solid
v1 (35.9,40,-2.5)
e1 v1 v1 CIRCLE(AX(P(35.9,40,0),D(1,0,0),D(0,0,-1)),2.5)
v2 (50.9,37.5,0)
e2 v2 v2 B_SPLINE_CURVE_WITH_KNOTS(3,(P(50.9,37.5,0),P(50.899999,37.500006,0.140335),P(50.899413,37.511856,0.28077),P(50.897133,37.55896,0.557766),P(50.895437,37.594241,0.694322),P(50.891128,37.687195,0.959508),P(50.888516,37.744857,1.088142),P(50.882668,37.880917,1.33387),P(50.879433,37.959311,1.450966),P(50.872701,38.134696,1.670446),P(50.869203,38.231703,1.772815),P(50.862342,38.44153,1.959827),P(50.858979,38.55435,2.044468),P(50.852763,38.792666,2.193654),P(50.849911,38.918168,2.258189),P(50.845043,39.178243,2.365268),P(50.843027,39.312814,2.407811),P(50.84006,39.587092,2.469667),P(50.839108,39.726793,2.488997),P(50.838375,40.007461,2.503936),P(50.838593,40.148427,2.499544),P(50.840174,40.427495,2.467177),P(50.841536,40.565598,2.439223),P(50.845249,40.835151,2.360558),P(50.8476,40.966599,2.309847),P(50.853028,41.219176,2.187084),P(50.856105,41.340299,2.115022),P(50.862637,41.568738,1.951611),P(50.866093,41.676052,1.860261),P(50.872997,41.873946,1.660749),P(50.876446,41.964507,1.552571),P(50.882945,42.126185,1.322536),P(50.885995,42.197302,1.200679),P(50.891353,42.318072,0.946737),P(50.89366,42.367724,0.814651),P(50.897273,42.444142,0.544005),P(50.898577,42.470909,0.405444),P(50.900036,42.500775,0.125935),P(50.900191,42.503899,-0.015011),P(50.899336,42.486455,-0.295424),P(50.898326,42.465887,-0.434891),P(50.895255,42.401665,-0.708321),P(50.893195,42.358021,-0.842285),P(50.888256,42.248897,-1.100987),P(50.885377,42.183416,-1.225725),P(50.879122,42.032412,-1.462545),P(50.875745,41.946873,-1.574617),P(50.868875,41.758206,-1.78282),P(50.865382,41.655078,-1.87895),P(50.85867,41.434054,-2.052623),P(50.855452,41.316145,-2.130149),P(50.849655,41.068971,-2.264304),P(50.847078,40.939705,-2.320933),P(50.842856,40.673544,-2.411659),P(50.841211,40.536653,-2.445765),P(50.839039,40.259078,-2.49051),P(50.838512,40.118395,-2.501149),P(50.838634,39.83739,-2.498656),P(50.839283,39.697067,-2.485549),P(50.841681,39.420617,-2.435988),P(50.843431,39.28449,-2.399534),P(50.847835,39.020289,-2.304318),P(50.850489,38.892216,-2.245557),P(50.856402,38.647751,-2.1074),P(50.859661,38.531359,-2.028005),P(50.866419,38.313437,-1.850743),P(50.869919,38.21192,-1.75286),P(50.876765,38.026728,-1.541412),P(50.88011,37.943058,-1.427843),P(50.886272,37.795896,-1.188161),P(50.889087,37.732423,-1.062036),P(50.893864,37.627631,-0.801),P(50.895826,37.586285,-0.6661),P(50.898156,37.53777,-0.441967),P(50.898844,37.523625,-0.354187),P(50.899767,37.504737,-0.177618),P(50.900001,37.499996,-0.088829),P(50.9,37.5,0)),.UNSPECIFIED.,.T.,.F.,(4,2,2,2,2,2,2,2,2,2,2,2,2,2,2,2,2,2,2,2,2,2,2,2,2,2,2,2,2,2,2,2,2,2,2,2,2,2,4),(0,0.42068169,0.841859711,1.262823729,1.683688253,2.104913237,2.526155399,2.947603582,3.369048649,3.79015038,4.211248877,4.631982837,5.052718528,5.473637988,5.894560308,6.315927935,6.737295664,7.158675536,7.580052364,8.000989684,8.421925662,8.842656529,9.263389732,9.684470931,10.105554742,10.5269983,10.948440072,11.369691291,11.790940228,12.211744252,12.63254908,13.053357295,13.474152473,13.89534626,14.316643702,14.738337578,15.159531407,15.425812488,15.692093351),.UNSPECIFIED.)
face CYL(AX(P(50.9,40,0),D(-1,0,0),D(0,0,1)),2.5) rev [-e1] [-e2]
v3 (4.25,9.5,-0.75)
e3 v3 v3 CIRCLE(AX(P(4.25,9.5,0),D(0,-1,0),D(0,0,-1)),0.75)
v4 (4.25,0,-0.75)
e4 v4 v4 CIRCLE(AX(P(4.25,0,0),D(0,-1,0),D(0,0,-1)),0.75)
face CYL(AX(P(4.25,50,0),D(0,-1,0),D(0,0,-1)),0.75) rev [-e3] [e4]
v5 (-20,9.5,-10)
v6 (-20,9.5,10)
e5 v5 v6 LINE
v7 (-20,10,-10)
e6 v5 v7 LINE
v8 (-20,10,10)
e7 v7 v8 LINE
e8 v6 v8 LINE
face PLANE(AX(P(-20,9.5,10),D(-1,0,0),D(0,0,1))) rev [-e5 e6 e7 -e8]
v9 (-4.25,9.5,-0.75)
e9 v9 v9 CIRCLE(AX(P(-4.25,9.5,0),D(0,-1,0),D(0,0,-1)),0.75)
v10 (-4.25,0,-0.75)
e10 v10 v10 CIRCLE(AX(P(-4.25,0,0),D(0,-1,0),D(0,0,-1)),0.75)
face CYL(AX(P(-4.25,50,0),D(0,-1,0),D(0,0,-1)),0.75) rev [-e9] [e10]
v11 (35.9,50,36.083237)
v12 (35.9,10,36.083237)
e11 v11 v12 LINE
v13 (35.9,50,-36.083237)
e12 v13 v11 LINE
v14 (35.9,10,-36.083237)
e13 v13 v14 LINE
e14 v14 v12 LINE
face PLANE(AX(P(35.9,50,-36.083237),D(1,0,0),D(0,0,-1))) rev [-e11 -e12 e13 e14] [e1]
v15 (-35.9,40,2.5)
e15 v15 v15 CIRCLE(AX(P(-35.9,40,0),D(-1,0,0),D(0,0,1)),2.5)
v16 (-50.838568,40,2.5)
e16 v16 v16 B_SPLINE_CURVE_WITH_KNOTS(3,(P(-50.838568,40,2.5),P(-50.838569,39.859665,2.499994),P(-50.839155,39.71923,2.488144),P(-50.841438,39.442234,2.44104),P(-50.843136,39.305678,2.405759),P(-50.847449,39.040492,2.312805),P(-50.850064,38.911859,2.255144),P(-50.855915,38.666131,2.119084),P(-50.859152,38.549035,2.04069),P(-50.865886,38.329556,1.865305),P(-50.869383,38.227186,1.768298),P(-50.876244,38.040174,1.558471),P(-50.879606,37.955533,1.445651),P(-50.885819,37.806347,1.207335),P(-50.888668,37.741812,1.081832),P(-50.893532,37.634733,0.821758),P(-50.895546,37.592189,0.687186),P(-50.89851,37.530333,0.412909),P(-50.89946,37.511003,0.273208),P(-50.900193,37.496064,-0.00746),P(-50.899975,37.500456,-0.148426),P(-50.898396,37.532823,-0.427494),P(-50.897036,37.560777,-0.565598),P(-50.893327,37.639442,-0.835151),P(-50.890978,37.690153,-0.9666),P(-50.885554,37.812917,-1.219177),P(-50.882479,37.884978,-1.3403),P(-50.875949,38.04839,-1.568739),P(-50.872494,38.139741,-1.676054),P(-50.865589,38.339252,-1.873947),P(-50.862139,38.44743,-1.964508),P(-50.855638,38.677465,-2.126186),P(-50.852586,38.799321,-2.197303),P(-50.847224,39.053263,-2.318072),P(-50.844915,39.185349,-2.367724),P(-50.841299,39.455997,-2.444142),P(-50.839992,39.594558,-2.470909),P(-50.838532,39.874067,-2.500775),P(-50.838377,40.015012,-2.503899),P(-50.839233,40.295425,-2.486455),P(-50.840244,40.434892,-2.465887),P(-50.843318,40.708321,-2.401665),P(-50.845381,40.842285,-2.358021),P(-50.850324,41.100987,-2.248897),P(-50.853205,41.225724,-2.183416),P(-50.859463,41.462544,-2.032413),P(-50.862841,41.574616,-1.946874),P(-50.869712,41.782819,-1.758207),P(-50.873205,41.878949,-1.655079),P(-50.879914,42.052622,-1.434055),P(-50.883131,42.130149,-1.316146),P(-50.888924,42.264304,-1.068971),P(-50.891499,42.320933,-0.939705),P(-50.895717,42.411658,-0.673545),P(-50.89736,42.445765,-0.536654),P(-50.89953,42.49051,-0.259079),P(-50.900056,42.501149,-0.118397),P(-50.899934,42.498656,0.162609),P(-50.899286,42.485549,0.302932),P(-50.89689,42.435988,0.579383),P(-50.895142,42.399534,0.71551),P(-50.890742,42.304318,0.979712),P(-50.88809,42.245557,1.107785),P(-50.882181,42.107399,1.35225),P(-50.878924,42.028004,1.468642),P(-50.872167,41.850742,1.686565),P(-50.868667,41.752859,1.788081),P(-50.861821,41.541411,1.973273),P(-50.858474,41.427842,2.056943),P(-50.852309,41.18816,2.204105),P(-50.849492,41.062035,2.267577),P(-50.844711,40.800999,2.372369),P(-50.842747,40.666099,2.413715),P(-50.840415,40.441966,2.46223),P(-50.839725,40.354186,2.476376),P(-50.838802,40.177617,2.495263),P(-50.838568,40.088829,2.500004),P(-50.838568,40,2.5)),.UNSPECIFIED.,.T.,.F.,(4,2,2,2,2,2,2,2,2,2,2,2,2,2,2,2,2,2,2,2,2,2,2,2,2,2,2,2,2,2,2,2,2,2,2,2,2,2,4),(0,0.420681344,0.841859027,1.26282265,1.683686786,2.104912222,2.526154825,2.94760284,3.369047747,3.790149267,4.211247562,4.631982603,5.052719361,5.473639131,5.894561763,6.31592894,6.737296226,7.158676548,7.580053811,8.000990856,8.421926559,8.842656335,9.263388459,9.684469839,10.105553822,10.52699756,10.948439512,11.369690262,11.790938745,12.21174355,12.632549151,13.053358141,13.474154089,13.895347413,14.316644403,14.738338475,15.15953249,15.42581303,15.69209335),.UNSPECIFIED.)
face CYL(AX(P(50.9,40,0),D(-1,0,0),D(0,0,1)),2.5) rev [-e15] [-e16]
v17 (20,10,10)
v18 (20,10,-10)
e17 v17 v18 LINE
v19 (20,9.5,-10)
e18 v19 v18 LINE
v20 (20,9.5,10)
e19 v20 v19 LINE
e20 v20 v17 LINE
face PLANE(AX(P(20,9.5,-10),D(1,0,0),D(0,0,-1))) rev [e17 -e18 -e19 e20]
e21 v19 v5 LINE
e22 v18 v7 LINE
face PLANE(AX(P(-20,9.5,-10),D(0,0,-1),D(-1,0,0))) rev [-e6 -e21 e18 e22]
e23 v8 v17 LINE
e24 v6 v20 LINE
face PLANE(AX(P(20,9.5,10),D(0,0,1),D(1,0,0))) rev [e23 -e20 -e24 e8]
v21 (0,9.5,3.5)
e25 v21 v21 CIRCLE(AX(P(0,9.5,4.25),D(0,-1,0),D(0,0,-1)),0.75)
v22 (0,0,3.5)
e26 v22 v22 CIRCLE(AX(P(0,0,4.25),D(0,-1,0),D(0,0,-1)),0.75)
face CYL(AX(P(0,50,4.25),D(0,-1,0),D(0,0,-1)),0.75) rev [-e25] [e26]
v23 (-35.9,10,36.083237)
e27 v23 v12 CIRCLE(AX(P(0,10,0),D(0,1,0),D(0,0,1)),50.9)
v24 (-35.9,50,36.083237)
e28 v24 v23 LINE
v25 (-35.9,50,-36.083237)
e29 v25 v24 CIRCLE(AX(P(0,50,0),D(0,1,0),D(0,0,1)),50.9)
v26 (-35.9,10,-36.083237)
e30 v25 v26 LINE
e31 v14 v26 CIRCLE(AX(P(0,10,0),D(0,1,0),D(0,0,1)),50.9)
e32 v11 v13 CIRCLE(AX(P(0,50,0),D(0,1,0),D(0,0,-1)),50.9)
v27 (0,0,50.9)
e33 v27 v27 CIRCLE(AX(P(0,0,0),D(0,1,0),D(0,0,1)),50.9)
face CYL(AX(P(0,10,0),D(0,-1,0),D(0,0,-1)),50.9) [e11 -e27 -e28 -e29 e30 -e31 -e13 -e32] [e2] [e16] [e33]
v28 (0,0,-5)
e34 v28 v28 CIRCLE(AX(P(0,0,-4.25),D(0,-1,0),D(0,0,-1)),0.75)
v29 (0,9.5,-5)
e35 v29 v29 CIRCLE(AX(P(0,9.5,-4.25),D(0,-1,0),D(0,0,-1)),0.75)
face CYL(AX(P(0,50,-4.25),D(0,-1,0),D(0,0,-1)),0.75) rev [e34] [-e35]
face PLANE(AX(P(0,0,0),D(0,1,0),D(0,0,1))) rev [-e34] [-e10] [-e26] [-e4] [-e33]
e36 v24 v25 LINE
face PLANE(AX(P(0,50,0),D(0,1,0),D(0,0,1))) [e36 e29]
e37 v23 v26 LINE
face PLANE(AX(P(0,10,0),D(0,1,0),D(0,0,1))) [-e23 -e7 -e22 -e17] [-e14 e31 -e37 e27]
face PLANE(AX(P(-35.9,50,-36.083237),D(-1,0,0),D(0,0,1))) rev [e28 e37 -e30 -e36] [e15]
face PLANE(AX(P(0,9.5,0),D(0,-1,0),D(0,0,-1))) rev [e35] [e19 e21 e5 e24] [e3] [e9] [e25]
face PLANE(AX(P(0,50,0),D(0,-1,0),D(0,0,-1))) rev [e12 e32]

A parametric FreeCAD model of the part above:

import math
import FreeCAD as App
import Part
import Sketcher

doc = App.newDocument("Part")
body = doc.addObject("PartDesign::Body", "Body")

sketch1 = body.newObject("Sketcher::SketchObject", "Sketch")
sketch1.AttachmentSupport = (doc.getObject("XZ_Plane"), [""])
sketch1.MapMode = "FlatFace"
sketch1.addGeometry(Part.Circle(App.Vector(0, 0, 0), App.Vector(0, 0, 1), 50.9), False)
sketch1.addConstraint([
    Sketcher.Constraint("Coincident", 0, 3, -1, 1),
    Sketcher.Constraint("Diameter", 0, 101.8),
])
pad1 = body.newObject("PartDesign::Pad", "Pad")
pad1.Profile = sketch1
pad1.Length = 10
pad1.Reversed = True

sketch2 = body.newObject("Sketcher::SketchObject", "Sketch001")
sketch2.AttachmentSupport = (doc.getObject("XZ_Plane"), [""])
sketch2.MapMode = "FlatFace"
sketch2.AttachmentOffset = App.Placement(App.Vector(0, 0, -10), App.Rotation())
sketch2.addGeometry([
    Part.LineSegment(App.Vector(-35.9, 36.083237, 0), App.Vector(-35.9, -36.083237, 0)),
    Part.ArcOfCircle(Part.Circle(App.Vector(0, 0, 0), App.Vector(0, 0, 1), 50.9), math.radians(134.854151), math.radians(225.145849)),
    Part.LineSegment(App.Vector(35.9, -36.083237, 0), App.Vector(35.9, 36.083237, 0)),
    Part.ArcOfCircle(Part.Circle(App.Vector(0, 0, 0), App.Vector(0, 0, 1), 50.9), math.radians(-45.145849), math.radians(45.145849)),
], False)
sketch2.addConstraint([
    Sketcher.Constraint("Coincident", 0, 1, 1, 1),
    Sketcher.Constraint("Coincident", 1, 2, 0, 2),
    Sketcher.Constraint("Coincident", 2, 1, 3, 1),
    Sketcher.Constraint("Coincident", 3, 2, 2, 2),
    Sketcher.Constraint("Vertical", 0),
    Sketcher.Constraint("Vertical", 2),
    Sketcher.Constraint("Coincident", 1, 3, -1, 1),
    Sketcher.Constraint("Coincident", 3, 3, -1, 1),
    Sketcher.Constraint("Equal", 1, 3),
    Sketcher.Constraint("Horizontal", 1, 2, 2, 1),
    Sketcher.Constraint("Radius", 1, 50.9),
    Sketcher.Constraint("DistanceX", 0, 1, -1, 1, 35.9),
])
pad2 = body.newObject("PartDesign::Pad", "Pad001")
pad2.Profile = sketch2
pad2.Length = 40
pad2.Reversed = True

sketch3 = body.newObject("Sketcher::SketchObject", "Sketch002")
sketch3.AttachmentSupport = (doc.getObject("XZ_Plane"), [""])
sketch3.MapMode = "FlatFace"
sketch3.AttachmentOffset = App.Placement(App.Vector(0, 0, -10), App.Rotation())
sketch3.addGeometry([
    Part.LineSegment(App.Vector(-20, -10, 0), App.Vector(-20, 10, 0)),
    Part.LineSegment(App.Vector(-20, 10, 0), App.Vector(20, 10, 0)),
    Part.LineSegment(App.Vector(20, 10, 0), App.Vector(20, -10, 0)),
    Part.LineSegment(App.Vector(20, -10, 0), App.Vector(-20, -10, 0)),
], False)
sketch3.addConstraint([
    Sketcher.Constraint("Coincident", 0, 2, 1, 1),
    Sketcher.Constraint("Coincident", 1, 2, 2, 1),
    Sketcher.Constraint("Coincident", 2, 2, 3, 1),
    Sketcher.Constraint("Coincident", 3, 2, 0, 1),
    Sketcher.Constraint("Vertical", 0),
    Sketcher.Constraint("Horizontal", 1),
    Sketcher.Constraint("Vertical", 2),
    Sketcher.Constraint("Horizontal", 3),
    Sketcher.Constraint("Symmetric", 0, 2, 2, 2, -1, 1),
    Sketcher.Constraint("DistanceX", 1, 1, 1, 2, 40.0),
    Sketcher.Constraint("DistanceY", 0, 1, 0, 2, 20.0),
])
pocket1 = body.newObject("PartDesign::Pocket", "Pocket")
pocket1.Profile = sketch3
pocket1.Length = 0.5
pocket1.Reversed = True

sketch4 = body.newObject("Sketcher::SketchObject", "Sketch003")
sketch4.AttachmentSupport = (doc.getObject("YZ_Plane"), [""])
sketch4.MapMode = "FlatFace"
sketch4.AttachmentOffset = App.Placement(App.Vector(0, 0, 35.9), App.Rotation())
sketch4.addGeometry(Part.Circle(App.Vector(40, 0, 0), App.Vector(0, 0, 1), 2.5), False)
sketch4.addConstraint([
    Sketcher.Constraint("PointOnObject", 0, 3, -1),
    Sketcher.Constraint("Diameter", 0, 5.0),
    Sketcher.Constraint("DistanceX", -1, 1, 0, 3, 40.0),
])
pocket2 = body.newObject("PartDesign::Pocket", "Pocket001")
pocket2.Profile = sketch4
pocket2.Type = "ThroughAll"
pocket2.Midplane = True

sketch5 = body.newObject("Sketcher::SketchObject", "Sketch004")
sketch5.AttachmentSupport = (doc.getObject("XZ_Plane"), [""])
sketch5.MapMode = "FlatFace"
sketch5.addGeometry([
    Part.Circle(App.Vector(-4.25, 0, 0), App.Vector(0, 0, 1), 0.75),
    Part.Circle(App.Vector(0, 4.25, 0), App.Vector(0, 0, 1), 0.75),
    Part.Circle(App.Vector(4.25, 0, 0), App.Vector(0, 0, 1), 0.75),
    Part.Circle(App.Vector(0, -4.25, 0), App.Vector(0, 0, 1), 0.75),
], False)
sketch5.addConstraint([
    Sketcher.Constraint("Equal", 0, 1),
    Sketcher.Constraint("Equal", 1, 2),
    Sketcher.Constraint("Equal", 2, 3),
    Sketcher.Constraint("Symmetric", 0, 3, 2, 3, -1, 1),
    Sketcher.Constraint("Symmetric", 1, 3, 3, 3, -1, 1),
    Sketcher.Constraint("PointOnObject", 0, 3, -1),
    Sketcher.Constraint("PointOnObject", 1, 3, -2),
    Sketcher.Constraint("Diameter", 0, 1.5),
    Sketcher.Constraint("DistanceX", 0, 3, 2, 3, 8.5),
    Sketcher.Constraint("DistanceY", 3, 3, 1, 3, 8.5),
])
pocket3 = body.newObject("PartDesign::Pocket", "Pocket002")
pocket3.Profile = sketch5
pocket3.Type = "ThroughAll"

doc.recompute()
